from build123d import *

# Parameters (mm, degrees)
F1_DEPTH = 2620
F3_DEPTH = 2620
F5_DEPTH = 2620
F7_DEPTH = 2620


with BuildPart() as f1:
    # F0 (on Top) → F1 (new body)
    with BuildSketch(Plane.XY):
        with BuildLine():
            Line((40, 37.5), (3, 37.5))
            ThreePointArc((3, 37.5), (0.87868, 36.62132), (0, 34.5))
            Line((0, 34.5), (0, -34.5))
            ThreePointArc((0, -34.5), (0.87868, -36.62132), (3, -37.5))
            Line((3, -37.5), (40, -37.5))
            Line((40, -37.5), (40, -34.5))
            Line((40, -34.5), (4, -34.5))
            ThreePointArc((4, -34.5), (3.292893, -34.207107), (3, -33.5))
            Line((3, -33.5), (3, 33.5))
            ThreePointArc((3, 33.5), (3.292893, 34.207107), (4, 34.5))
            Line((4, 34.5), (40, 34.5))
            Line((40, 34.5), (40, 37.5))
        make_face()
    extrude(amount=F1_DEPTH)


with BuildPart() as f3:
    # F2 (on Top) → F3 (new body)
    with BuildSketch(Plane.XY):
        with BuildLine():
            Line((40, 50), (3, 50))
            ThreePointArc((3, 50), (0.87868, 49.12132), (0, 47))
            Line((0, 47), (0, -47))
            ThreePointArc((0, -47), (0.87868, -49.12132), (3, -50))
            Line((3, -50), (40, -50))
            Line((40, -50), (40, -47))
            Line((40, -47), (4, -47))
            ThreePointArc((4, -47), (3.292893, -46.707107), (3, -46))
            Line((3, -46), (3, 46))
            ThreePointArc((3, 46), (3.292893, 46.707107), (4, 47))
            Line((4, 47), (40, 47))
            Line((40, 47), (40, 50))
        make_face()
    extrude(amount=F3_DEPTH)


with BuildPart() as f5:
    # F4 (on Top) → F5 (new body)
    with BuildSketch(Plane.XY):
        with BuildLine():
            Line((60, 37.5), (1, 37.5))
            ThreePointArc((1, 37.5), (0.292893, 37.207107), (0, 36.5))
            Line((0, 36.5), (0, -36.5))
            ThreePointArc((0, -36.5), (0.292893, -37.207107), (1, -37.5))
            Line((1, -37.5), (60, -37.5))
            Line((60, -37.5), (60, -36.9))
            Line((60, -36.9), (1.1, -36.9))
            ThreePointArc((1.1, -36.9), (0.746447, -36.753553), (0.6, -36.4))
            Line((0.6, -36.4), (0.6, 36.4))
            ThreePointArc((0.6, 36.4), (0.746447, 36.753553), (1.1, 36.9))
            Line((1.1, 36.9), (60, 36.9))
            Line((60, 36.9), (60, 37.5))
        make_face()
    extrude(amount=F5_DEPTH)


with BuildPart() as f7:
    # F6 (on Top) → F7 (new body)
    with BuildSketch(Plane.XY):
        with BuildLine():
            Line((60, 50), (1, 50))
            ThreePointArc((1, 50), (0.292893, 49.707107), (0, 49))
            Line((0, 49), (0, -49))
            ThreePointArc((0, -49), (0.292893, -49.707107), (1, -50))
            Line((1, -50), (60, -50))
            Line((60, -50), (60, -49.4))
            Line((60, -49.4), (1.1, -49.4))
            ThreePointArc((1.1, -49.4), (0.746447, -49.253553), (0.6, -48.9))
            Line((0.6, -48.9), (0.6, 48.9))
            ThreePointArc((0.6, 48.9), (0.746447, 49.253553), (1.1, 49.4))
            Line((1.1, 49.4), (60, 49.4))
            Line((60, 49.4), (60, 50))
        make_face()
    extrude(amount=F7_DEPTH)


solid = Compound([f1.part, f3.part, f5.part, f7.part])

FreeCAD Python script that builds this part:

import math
import FreeCAD as App
import Part
import Sketcher
from FreeCAD import Vector
Q = App.Units.Quantity

doc = App.newDocument("Part")
body = doc.addObject("PartDesign::Body", "Body")

sketch1 = body.newObject("Sketcher::SketchObject", "Sketch")
sketch1.AttachmentSupport = (doc.getObject("XY_Plane"), [""])
sketch1.MapMode = "FlatFace"
sketch1.addGeometry(Part.LineSegment(Vector(40, 37.5, 0), Vector(3, 37.5, 0)), False)
sketch1.addGeometry(Part.ArcOfCircle(Part.Circle(Vector(3.000001, 34.499999, 0), Vector(0, 0, 1), 3.000001), math.radians(90.000022), math.radians(179.999978)), False)
sketch1.addGeometry(Part.LineSegment(Vector(0, 34.5, 0), Vector(0, -34.5, 0)), False)
sketch1.addGeometry(Part.ArcOfCircle(Part.Circle(Vector(3.000001, -34.499999, 0), Vector(0, 0, 1), 3.000001), math.radians(-179.999978), math.radians(-90.000022)), False)
sketch1.addGeometry(Part.LineSegment(Vector(3, -37.5, 0), Vector(40, -37.5, 0)), False)
sketch1.addGeometry(Part.LineSegment(Vector(40, -37.5, 0), Vector(40, -34.5, 0)), False)
sketch1.addGeometry(Part.LineSegment(Vector(40, -34.5, 0), Vector(4, -34.5, 0)), False)
sketch1.addGeometry(Part.ArcOfCircle(Part.Circle(Vector(3.999999, -33.500001, 0), Vector(0, 0, 1), 0.999999), math.radians(179.999957), math.radians(270.000043)), False)
sketch1.addGeometry(Part.LineSegment(Vector(3, -33.5, 0), Vector(3, 33.5, 0)), False)
sketch1.addGeometry(Part.ArcOfCircle(Part.Circle(Vector(3.999999, 33.500001, 0), Vector(0, 0, 1), 0.999999), math.radians(89.999957), math.radians(180.000043)), False)
sketch1.addGeometry(Part.LineSegment(Vector(4, 34.5, 0), Vector(40, 34.5, 0)), False)
sketch1.addGeometry(Part.LineSegment(Vector(40, 34.5, 0), Vector(40, 37.5, 0)), False)
sketch1.addConstraint(Sketcher.Constraint("Tangent", 0, 2, 1, 1))
sketch1.addConstraint(Sketcher.Constraint("Tangent", 1, 2, 2, 1))
sketch1.addConstraint(Sketcher.Constraint("Tangent", 2, 2, 3, 1))
sketch1.addConstraint(Sketcher.Constraint("Tangent", 3, 2, 4, 1))
sketch1.addConstraint(Sketcher.Constraint("Coincident", 4, 2, 5, 1))
sketch1.addConstraint(Sketcher.Constraint("Coincident", 5, 2, 6, 1))
sketch1.addConstraint(Sketcher.Constraint("Tangent", 6, 2, 7, 2))
sketch1.addConstraint(Sketcher.Constraint("Tangent", 7, 1, 8, 1))
sketch1.addConstraint(Sketcher.Constraint("Tangent", 8, 2, 9, 2))
sketch1.addConstraint(Sketcher.Constraint("Tangent", 9, 1, 10, 1))
sketch1.addConstraint(Sketcher.Constraint("Coincident", 10, 2, 11, 1))
sketch1.addConstraint(Sketcher.Constraint("Coincident", 11, 2, 0, 1))
sketch1.addConstraint(Sketcher.Constraint("Horizontal", 0))
sketch1.addConstraint(Sketcher.Constraint("Vertical", 2))
sketch1.addConstraint(Sketcher.Constraint("Horizontal", 4))
sketch1.addConstraint(Sketcher.Constraint("Vertical", 5))
sketch1.addConstraint(Sketcher.Constraint("Horizontal", 6))
sketch1.addConstraint(Sketcher.Constraint("Vertical", 8))
sketch1.addConstraint(Sketcher.Constraint("Horizontal", 10))
sketch1.addConstraint(Sketcher.Constraint("Vertical", 11))
sketch1.addConstraint(Sketcher.Constraint("Equal", 1, 3))
sketch1.addConstraint(Sketcher.Constraint("Equal", 7, 9))
sketch1.addConstraint(Sketcher.Constraint("Symmetric", 1, 2, 2, 2, -1, 1))
sketch1.addConstraint(Sketcher.Constraint("Symmetric", 5, 2, 10, 2, -1))
sketch1.addConstraint(Sketcher.Constraint("Horizontal", 2, 2, 5, 2))
sketch1.addConstraint(Sketcher.Constraint("Vertical", 3, 2, 7, 1))
sketch1.addConstraint(Sketcher.Constraint("Radius", 1, Q("3.000001 mm")))
sketch1.addConstraint(Sketcher.Constraint("Radius", 7, Q("0.999999 mm")))
sketch1.addConstraint(Sketcher.Constraint("DistanceX", 0, 2, 0, 1, Q("37 mm")))
sketch1.addConstraint(Sketcher.Constraint("DistanceY", 2, 2, 2, 1, Q("69 mm")))
pad1 = body.newObject("PartDesign::Pad", "Pad")
pad1.Profile = sketch1
pad1.Length = 2620
body2 = doc.addObject("PartDesign::Body", "Body001")

sketch2 = body2.newObject("Sketcher::SketchObject", "Sketch001")
sketch2.AttachmentSupport = (doc.getObject("XY_Plane001"), [""])
sketch2.MapMode = "FlatFace"
sketch2.addGeometry(Part.LineSegment(Vector(40, 50, 0), Vector(3, 50, 0)), False)
sketch2.addGeometry(Part.ArcOfCircle(Part.Circle(Vector(3.000001, 46.999999, 0), Vector(0, 0, 1), 3.000001), math.radians(90.000022), math.radians(179.999978)), False)
sketch2.addGeometry(Part.LineSegment(Vector(0, 47, 0), Vector(0, -47, 0)), False)
sketch2.addGeometry(Part.ArcOfCircle(Part.Circle(Vector(3.000001, -46.999999, 0), Vector(0, 0, 1), 3.000001), math.radians(-179.999978), math.radians(-90.000022)), False)
sketch2.addGeometry(Part.LineSegment(Vector(3, -50, 0), Vector(40, -50, 0)), False)
sketch2.addGeometry(Part.LineSegment(Vector(40, -50, 0), Vector(40, -47, 0)), False)
sketch2.addGeometry(Part.LineSegment(Vector(40, -47, 0), Vector(4, -47, 0)), False)
sketch2.addGeometry(Part.ArcOfCircle(Part.Circle(Vector(3.999999, -46.000001, 0), Vector(0, 0, 1), 0.999999), math.radians(179.999957), math.radians(270.000043)), False)
sketch2.addGeometry(Part.LineSegment(Vector(3, -46, 0), Vector(3, 46, 0)), False)
sketch2.addGeometry(Part.ArcOfCircle(Part.Circle(Vector(3.999999, 46.000001, 0), Vector(0, 0, 1), 0.999999), math.radians(89.999957), math.radians(180.000043)), False)
sketch2.addGeometry(Part.LineSegment(Vector(4, 47, 0), Vector(40, 47, 0)), False)
sketch2.addGeometry(Part.LineSegment(Vector(40, 47, 0), Vector(40, 50, 0)), False)
sketch2.addConstraint(Sketcher.Constraint("Tangent", 0, 2, 1, 1))
sketch2.addConstraint(Sketcher.Constraint("Tangent", 1, 2, 2, 1))
sketch2.addConstraint(Sketcher.Constraint("Tangent", 2, 2, 3, 1))
sketch2.addConstraint(Sketcher.Constraint("Tangent", 3, 2, 4, 1))
sketch2.addConstraint(Sketcher.Constraint("Coincident", 4, 2, 5, 1))
sketch2.addConstraint(Sketcher.Constraint("Coincident", 5, 2, 6, 1))
sketch2.addConstraint(Sketcher.Constraint("Tangent", 6, 2, 7, 2))
sketch2.addConstraint(Sketcher.Constraint("Tangent", 7, 1, 8, 1))
sketch2.addConstraint(Sketcher.Constraint("Tangent", 8, 2, 9, 2))
sketch2.addConstraint(Sketcher.Constraint("Tangent", 9, 1, 10, 1))
sketch2.addConstraint(Sketcher.Constraint("Coincident", 10, 2, 11, 1))
sketch2.addConstraint(Sketcher.Constraint("Coincident", 11, 2, 0, 1))
sketch2.addConstraint(Sketcher.Constraint("Horizontal", 0))
sketch2.addConstraint(Sketcher.Constraint("Vertical", 2))
sketch2.addConstraint(Sketcher.Constraint("Horizontal", 4))
sketch2.addConstraint(Sketcher.Constraint("Vertical", 5))
sketch2.addConstraint(Sketcher.Constraint("Horizontal", 6))
sketch2.addConstraint(Sketcher.Constraint("Vertical", 8))
sketch2.addConstraint(Sketcher.Constraint("Horizontal", 10))
sketch2.addConstraint(Sketcher.Constraint("Vertical", 11))
sketch2.addConstraint(Sketcher.Constraint("Equal", 1, 3))
sketch2.addConstraint(Sketcher.Constraint("Equal", 7, 9))
sketch2.addConstraint(Sketcher.Constraint("Symmetric", 1, 2, 2, 2, -1, 1))
sketch2.addConstraint(Sketcher.Constraint("Symmetric", 5, 2, 10, 2, -1))
sketch2.addConstraint(Sketcher.Constraint("Horizontal", 2, 2, 5, 2))
sketch2.addConstraint(Sketcher.Constraint("Vertical", 3, 2, 7, 1))
sketch2.addConstraint(Sketcher.Constraint("Radius", 1, Q("3.000001 mm")))
sketch2.addConstraint(Sketcher.Constraint("Radius", 7, Q("0.999999 mm")))
sketch2.addConstraint(Sketcher.Constraint("DistanceX", 0, 2, 0, 1, Q("37 mm")))
sketch2.addConstraint(Sketcher.Constraint("DistanceY", 2, 2, 2, 1, Q("94 mm")))
pad2 = body2.newObject("PartDesign::Pad", "Pad001")
pad2.Profile = sketch2
pad2.Length = 2620
body3 = doc.addObject("PartDesign::Body", "Body002")

sketch3 = body3.newObject("Sketcher::SketchObject", "Sketch002")
sketch3.AttachmentSupport = (doc.getObject("XY_Plane002"), [""])
sketch3.MapMode = "FlatFace"
sketch3.addGeometry(Part.LineSegment(Vector(60, 37.5, 0), Vector(1, 37.5, 0)), False)
sketch3.addGeometry(Part.ArcOfCircle(Part.Circle(Vector(0.999999, 36.500001, 0), Vector(0, 0, 1), 0.999999), math.radians(89.999957), math.radians(180.000043)), False)
sketch3.addGeometry(Part.LineSegment(Vector(0, 36.5, 0), Vector(0, -36.5, 0)), False)
sketch3.addGeometry(Part.ArcOfCircle(Part.Circle(Vector(0.999999, -36.500001, 0), Vector(0, 0, 1), 0.999999), math.radians(179.999957), math.radians(270.000043)), False)
sketch3.addGeometry(Part.LineSegment(Vector(1, -37.5, 0), Vector(60, -37.5, 0)), False)
sketch3.addGeometry(Part.LineSegment(Vector(60, -37.5, 0), Vector(60, -36.9, 0)), False)
sketch3.addGeometry(Part.LineSegment(Vector(60, -36.9, 0), Vector(1.1, -36.9, 0)), False)
sketch3.addGeometry(Part.ArcOfCircle(Part.Circle(Vector(1.100001, -36.399999, 0), Vector(0, 0, 1), 0.500001), math.radians(-179.999847), math.radians(-90.000153)), False)
sketch3.addGeometry(Part.LineSegment(Vector(0.6, -36.4, 0), Vector(0.6, 36.4, 0)), False)
sketch3.addGeometry(Part.ArcOfCircle(Part.Circle(Vector(1.100001, 36.399999, 0), Vector(0, 0, 1), 0.500001), math.radians(90.000153), math.radians(179.999847)), False)
sketch3.addGeometry(Part.LineSegment(Vector(1.1, 36.9, 0), Vector(60, 36.9, 0)), False)
sketch3.addGeometry(Part.LineSegment(Vector(60, 36.9, 0), Vector(60, 37.5, 0)), False)
sketch3.addConstraint(Sketcher.Constraint("Tangent", 0, 2, 1, 1))
sketch3.addConstraint(Sketcher.Constraint("Tangent", 1, 2, 2, 1))
sketch3.addConstraint(Sketcher.Constraint("Tangent", 2, 2, 3, 1))
sketch3.addConstraint(Sketcher.Constraint("Tangent", 3, 2, 4, 1))
sketch3.addConstraint(Sketcher.Constraint("Coincident", 4, 2, 5, 1))
sketch3.addConstraint(Sketcher.Constraint("Coincident", 5, 2, 6, 1))
sketch3.addConstraint(Sketcher.Constraint("Coincident", 6, 2, 7, 2))
sketch3.addConstraint(Sketcher.Constraint("Coincident", 7, 1, 8, 1))
sketch3.addConstraint(Sketcher.Constraint("Coincident", 8, 2, 9, 2))
sketch3.addConstraint(Sketcher.Constraint("Coincident", 9, 1, 10, 1))
sketch3.addConstraint(Sketcher.Constraint("Coincident", 10, 2, 11, 1))
sketch3.addConstraint(Sketcher.Constraint("Coincident", 11, 2, 0, 1))
sketch3.addConstraint(Sketcher.Constraint("Horizontal", 0))
sketch3.addConstraint(Sketcher.Constraint("Vertical", 2))
sketch3.addConstraint(Sketcher.Constraint("Horizontal", 4))
sketch3.addConstraint(Sketcher.Constraint("Vertical", 5))
sketch3.addConstraint(Sketcher.Constraint("Horizontal", 6))
sketch3.addConstraint(Sketcher.Constraint("Vertical", 8))
sketch3.addConstraint(Sketcher.Constraint("Horizontal", 10))
sketch3.addConstraint(Sketcher.Constraint("Vertical", 11))
sketch3.addConstraint(Sketcher.Constraint("Equal", 1, 3))
sketch3.addConstraint(Sketcher.Constraint("Equal", 7, 9))
sketch3.addConstraint(Sketcher.Constraint("Symmetric", 1, 2, 2, 2, -1, 1))
sketch3.addConstraint(Sketcher.Constraint("Symmetric", 6, 2, 9, 1, -1))
sketch3.addConstraint(Sketcher.Constraint("Horizontal", 9, 3, 8, 2))
sketch3.addConstraint(Sketcher.Constraint("Vertical", 9, 3, 6, 2))
sketch3.addConstraint(Sketcher.Constraint("Vertical", 5, 2, 10, 2))
sketch3.addConstraint(Sketcher.Constraint("Radius", 1, Q("0.999999 mm")))
sketch3.addConstraint(Sketcher.Constraint("Radius", 7, Q("0.500001 mm")))
sketch3.addConstraint(Sketcher.Constraint("DistanceX", 0, 2, 0, 1, Q("59 mm")))
sketch3.addConstraint(Sketcher.Constraint("DistanceY", 2, 2, 2, 1, Q("73 mm")))
sketch3.addConstraint(Sketcher.Constraint("DistanceX", 6, 2, 6, 1, Q("58.9 mm")))
sketch3.addConstraint(Sketcher.Constraint("DistanceY", 5, 1, 5, 2, Q("0.6 mm")))
sketch3.addConstraint(Sketcher.Constraint("DistanceY", 8, 1, 8, 2, Q("72.8 mm")))
pad3 = body3.newObject("PartDesign::Pad", "Pad002")
pad3.Profile = sketch3
pad3.Length = 2620
body4 = doc.addObject("PartDesign::Body", "Body003")

sketch4 = body4.newObject("Sketcher::SketchObject", "Sketch003")
sketch4.AttachmentSupport = (doc.getObject("XY_Plane003"), [""])
sketch4.MapMode = "FlatFace"
sketch4.addGeometry(Part.LineSegment(Vector(60, 50, 0), Vector(1, 50, 0)), False)
sketch4.addGeometry(Part.ArcOfCircle(Part.Circle(Vector(0.999999, 49.000001, 0), Vector(0, 0, 1), 0.999999), math.radians(89.999957), math.radians(180.000043)), False)
sketch4.addGeometry(Part.LineSegment(Vector(0, 49, 0), Vector(0, -49, 0)), False)
sketch4.addGeometry(Part.ArcOfCircle(Part.Circle(Vector(0.999999, -49.000001, 0), Vector(0, 0, 1), 0.999999), math.radians(179.999957), math.radians(270.000043)), False)
sketch4.addGeometry(Part.LineSegment(Vector(1, -50, 0), Vector(60, -50, 0)), False)
sketch4.addGeometry(Part.LineSegment(Vector(60, -50, 0), Vector(60, -49.4, 0)), False)
sketch4.addGeometry(Part.LineSegment(Vector(60, -49.4, 0), Vector(1.1, -49.4, 0)), False)
sketch4.addGeometry(Part.ArcOfCircle(Part.Circle(Vector(1.100001, -48.899999, 0), Vector(0, 0, 1), 0.500001), math.radians(-179.999847), math.radians(-90.000153)), False)
sketch4.addGeometry(Part.LineSegment(Vector(0.6, -48.9, 0), Vector(0.6, 48.9, 0)), False)
sketch4.addGeometry(Part.ArcOfCircle(Part.Circle(Vector(1.100001, 48.899999, 0), Vector(0, 0, 1), 0.500001), math.radians(90.000153), math.radians(179.999847)), False)
sketch4.addGeometry(Part.LineSegment(Vector(1.1, 49.4, 0), Vector(60, 49.4, 0)), False)
sketch4.addGeometry(Part.LineSegment(Vector(60, 49.4, 0), Vector(60, 50, 0)), False)
sketch4.addConstraint(Sketcher.Constraint("Tangent", 0, 2, 1, 1))
sketch4.addConstraint(Sketcher.Constraint("Tangent", 1, 2, 2, 1))
sketch4.addConstraint(Sketcher.Constraint("Tangent", 2, 2, 3, 1))
sketch4.addConstraint(Sketcher.Constraint("Tangent", 3, 2, 4, 1))
sketch4.addConstraint(Sketcher.Constraint("Coincident", 4, 2, 5, 1))
sketch4.addConstraint(Sketcher.Constraint("Coincident", 5, 2, 6, 1))
sketch4.addConstraint(Sketcher.Constraint("Coincident", 6, 2, 7, 2))
sketch4.addConstraint(Sketcher.Constraint("Coincident", 7, 1, 8, 1))
sketch4.addConstraint(Sketcher.Constraint("Coincident", 8, 2, 9, 2))
sketch4.addConstraint(Sketcher.Constraint("Coincident", 9, 1, 10, 1))
sketch4.addConstraint(Sketcher.Constraint("Coincident", 10, 2, 11, 1))
sketch4.addConstraint(Sketcher.Constraint("Coincident", 11, 2, 0, 1))
sketch4.addConstraint(Sketcher.Constraint("Horizontal", 0))
sketch4.addConstraint(Sketcher.Constraint("Vertical", 2))
sketch4.addConstraint(Sketcher.Constraint("Horizontal", 4))
sketch4.addConstraint(Sketcher.Constraint("Vertical", 5))
sketch4.addConstraint(Sketcher.Constraint("Horizontal", 6))
sketch4.addConstraint(Sketcher.Constraint("Vertical", 8))
sketch4.addConstraint(Sketcher.Constraint("Horizontal", 10))
sketch4.addConstraint(Sketcher.Constraint("Vertical", 11))
sketch4.addConstraint(Sketcher.Constraint("Equal", 1, 3))
sketch4.addConstraint(Sketcher.Constraint("Equal", 7, 9))
sketch4.addConstraint(Sketcher.Constraint("Symmetric", 1, 2, 2, 2, -1, 1))
sketch4.addConstraint(Sketcher.Constraint("Symmetric", 6, 2, 9, 1, -1))
sketch4.addConstraint(Sketcher.Constraint("Horizontal", 9, 3, 8, 2))
sketch4.addConstraint(Sketcher.Constraint("Vertical", 9, 3, 6, 2))
sketch4.addConstraint(Sketcher.Constraint("Vertical", 5, 2, 10, 2))
sketch4.addConstraint(Sketcher.Constraint("Radius", 1, Q("0.999999 mm")))
sketch4.addConstraint(Sketcher.Constraint("Radius", 7, Q("0.500001 mm")))
sketch4.addConstraint(Sketcher.Constraint("DistanceX", 0, 2, 0, 1, Q("59 mm")))
sketch4.addConstraint(Sketcher.Constraint("DistanceY", 2, 2, 2, 1, Q("98 mm")))
sketch4.addConstraint(Sketcher.Constraint("DistanceX", 6, 2, 6, 1, Q("58.9 mm")))
sketch4.addConstraint(Sketcher.Constraint("DistanceY", 5, 1, 5, 2, Q("0.6 mm")))
sketch4.addConstraint(Sketcher.Constraint("DistanceY", 8, 1, 8, 2, Q("97.8 mm")))
pad4 = body4.newObject("PartDesign::Pad", "Pad003")
pad4.Profile = sketch4
pad4.Length = 2620

doc.recompute()
